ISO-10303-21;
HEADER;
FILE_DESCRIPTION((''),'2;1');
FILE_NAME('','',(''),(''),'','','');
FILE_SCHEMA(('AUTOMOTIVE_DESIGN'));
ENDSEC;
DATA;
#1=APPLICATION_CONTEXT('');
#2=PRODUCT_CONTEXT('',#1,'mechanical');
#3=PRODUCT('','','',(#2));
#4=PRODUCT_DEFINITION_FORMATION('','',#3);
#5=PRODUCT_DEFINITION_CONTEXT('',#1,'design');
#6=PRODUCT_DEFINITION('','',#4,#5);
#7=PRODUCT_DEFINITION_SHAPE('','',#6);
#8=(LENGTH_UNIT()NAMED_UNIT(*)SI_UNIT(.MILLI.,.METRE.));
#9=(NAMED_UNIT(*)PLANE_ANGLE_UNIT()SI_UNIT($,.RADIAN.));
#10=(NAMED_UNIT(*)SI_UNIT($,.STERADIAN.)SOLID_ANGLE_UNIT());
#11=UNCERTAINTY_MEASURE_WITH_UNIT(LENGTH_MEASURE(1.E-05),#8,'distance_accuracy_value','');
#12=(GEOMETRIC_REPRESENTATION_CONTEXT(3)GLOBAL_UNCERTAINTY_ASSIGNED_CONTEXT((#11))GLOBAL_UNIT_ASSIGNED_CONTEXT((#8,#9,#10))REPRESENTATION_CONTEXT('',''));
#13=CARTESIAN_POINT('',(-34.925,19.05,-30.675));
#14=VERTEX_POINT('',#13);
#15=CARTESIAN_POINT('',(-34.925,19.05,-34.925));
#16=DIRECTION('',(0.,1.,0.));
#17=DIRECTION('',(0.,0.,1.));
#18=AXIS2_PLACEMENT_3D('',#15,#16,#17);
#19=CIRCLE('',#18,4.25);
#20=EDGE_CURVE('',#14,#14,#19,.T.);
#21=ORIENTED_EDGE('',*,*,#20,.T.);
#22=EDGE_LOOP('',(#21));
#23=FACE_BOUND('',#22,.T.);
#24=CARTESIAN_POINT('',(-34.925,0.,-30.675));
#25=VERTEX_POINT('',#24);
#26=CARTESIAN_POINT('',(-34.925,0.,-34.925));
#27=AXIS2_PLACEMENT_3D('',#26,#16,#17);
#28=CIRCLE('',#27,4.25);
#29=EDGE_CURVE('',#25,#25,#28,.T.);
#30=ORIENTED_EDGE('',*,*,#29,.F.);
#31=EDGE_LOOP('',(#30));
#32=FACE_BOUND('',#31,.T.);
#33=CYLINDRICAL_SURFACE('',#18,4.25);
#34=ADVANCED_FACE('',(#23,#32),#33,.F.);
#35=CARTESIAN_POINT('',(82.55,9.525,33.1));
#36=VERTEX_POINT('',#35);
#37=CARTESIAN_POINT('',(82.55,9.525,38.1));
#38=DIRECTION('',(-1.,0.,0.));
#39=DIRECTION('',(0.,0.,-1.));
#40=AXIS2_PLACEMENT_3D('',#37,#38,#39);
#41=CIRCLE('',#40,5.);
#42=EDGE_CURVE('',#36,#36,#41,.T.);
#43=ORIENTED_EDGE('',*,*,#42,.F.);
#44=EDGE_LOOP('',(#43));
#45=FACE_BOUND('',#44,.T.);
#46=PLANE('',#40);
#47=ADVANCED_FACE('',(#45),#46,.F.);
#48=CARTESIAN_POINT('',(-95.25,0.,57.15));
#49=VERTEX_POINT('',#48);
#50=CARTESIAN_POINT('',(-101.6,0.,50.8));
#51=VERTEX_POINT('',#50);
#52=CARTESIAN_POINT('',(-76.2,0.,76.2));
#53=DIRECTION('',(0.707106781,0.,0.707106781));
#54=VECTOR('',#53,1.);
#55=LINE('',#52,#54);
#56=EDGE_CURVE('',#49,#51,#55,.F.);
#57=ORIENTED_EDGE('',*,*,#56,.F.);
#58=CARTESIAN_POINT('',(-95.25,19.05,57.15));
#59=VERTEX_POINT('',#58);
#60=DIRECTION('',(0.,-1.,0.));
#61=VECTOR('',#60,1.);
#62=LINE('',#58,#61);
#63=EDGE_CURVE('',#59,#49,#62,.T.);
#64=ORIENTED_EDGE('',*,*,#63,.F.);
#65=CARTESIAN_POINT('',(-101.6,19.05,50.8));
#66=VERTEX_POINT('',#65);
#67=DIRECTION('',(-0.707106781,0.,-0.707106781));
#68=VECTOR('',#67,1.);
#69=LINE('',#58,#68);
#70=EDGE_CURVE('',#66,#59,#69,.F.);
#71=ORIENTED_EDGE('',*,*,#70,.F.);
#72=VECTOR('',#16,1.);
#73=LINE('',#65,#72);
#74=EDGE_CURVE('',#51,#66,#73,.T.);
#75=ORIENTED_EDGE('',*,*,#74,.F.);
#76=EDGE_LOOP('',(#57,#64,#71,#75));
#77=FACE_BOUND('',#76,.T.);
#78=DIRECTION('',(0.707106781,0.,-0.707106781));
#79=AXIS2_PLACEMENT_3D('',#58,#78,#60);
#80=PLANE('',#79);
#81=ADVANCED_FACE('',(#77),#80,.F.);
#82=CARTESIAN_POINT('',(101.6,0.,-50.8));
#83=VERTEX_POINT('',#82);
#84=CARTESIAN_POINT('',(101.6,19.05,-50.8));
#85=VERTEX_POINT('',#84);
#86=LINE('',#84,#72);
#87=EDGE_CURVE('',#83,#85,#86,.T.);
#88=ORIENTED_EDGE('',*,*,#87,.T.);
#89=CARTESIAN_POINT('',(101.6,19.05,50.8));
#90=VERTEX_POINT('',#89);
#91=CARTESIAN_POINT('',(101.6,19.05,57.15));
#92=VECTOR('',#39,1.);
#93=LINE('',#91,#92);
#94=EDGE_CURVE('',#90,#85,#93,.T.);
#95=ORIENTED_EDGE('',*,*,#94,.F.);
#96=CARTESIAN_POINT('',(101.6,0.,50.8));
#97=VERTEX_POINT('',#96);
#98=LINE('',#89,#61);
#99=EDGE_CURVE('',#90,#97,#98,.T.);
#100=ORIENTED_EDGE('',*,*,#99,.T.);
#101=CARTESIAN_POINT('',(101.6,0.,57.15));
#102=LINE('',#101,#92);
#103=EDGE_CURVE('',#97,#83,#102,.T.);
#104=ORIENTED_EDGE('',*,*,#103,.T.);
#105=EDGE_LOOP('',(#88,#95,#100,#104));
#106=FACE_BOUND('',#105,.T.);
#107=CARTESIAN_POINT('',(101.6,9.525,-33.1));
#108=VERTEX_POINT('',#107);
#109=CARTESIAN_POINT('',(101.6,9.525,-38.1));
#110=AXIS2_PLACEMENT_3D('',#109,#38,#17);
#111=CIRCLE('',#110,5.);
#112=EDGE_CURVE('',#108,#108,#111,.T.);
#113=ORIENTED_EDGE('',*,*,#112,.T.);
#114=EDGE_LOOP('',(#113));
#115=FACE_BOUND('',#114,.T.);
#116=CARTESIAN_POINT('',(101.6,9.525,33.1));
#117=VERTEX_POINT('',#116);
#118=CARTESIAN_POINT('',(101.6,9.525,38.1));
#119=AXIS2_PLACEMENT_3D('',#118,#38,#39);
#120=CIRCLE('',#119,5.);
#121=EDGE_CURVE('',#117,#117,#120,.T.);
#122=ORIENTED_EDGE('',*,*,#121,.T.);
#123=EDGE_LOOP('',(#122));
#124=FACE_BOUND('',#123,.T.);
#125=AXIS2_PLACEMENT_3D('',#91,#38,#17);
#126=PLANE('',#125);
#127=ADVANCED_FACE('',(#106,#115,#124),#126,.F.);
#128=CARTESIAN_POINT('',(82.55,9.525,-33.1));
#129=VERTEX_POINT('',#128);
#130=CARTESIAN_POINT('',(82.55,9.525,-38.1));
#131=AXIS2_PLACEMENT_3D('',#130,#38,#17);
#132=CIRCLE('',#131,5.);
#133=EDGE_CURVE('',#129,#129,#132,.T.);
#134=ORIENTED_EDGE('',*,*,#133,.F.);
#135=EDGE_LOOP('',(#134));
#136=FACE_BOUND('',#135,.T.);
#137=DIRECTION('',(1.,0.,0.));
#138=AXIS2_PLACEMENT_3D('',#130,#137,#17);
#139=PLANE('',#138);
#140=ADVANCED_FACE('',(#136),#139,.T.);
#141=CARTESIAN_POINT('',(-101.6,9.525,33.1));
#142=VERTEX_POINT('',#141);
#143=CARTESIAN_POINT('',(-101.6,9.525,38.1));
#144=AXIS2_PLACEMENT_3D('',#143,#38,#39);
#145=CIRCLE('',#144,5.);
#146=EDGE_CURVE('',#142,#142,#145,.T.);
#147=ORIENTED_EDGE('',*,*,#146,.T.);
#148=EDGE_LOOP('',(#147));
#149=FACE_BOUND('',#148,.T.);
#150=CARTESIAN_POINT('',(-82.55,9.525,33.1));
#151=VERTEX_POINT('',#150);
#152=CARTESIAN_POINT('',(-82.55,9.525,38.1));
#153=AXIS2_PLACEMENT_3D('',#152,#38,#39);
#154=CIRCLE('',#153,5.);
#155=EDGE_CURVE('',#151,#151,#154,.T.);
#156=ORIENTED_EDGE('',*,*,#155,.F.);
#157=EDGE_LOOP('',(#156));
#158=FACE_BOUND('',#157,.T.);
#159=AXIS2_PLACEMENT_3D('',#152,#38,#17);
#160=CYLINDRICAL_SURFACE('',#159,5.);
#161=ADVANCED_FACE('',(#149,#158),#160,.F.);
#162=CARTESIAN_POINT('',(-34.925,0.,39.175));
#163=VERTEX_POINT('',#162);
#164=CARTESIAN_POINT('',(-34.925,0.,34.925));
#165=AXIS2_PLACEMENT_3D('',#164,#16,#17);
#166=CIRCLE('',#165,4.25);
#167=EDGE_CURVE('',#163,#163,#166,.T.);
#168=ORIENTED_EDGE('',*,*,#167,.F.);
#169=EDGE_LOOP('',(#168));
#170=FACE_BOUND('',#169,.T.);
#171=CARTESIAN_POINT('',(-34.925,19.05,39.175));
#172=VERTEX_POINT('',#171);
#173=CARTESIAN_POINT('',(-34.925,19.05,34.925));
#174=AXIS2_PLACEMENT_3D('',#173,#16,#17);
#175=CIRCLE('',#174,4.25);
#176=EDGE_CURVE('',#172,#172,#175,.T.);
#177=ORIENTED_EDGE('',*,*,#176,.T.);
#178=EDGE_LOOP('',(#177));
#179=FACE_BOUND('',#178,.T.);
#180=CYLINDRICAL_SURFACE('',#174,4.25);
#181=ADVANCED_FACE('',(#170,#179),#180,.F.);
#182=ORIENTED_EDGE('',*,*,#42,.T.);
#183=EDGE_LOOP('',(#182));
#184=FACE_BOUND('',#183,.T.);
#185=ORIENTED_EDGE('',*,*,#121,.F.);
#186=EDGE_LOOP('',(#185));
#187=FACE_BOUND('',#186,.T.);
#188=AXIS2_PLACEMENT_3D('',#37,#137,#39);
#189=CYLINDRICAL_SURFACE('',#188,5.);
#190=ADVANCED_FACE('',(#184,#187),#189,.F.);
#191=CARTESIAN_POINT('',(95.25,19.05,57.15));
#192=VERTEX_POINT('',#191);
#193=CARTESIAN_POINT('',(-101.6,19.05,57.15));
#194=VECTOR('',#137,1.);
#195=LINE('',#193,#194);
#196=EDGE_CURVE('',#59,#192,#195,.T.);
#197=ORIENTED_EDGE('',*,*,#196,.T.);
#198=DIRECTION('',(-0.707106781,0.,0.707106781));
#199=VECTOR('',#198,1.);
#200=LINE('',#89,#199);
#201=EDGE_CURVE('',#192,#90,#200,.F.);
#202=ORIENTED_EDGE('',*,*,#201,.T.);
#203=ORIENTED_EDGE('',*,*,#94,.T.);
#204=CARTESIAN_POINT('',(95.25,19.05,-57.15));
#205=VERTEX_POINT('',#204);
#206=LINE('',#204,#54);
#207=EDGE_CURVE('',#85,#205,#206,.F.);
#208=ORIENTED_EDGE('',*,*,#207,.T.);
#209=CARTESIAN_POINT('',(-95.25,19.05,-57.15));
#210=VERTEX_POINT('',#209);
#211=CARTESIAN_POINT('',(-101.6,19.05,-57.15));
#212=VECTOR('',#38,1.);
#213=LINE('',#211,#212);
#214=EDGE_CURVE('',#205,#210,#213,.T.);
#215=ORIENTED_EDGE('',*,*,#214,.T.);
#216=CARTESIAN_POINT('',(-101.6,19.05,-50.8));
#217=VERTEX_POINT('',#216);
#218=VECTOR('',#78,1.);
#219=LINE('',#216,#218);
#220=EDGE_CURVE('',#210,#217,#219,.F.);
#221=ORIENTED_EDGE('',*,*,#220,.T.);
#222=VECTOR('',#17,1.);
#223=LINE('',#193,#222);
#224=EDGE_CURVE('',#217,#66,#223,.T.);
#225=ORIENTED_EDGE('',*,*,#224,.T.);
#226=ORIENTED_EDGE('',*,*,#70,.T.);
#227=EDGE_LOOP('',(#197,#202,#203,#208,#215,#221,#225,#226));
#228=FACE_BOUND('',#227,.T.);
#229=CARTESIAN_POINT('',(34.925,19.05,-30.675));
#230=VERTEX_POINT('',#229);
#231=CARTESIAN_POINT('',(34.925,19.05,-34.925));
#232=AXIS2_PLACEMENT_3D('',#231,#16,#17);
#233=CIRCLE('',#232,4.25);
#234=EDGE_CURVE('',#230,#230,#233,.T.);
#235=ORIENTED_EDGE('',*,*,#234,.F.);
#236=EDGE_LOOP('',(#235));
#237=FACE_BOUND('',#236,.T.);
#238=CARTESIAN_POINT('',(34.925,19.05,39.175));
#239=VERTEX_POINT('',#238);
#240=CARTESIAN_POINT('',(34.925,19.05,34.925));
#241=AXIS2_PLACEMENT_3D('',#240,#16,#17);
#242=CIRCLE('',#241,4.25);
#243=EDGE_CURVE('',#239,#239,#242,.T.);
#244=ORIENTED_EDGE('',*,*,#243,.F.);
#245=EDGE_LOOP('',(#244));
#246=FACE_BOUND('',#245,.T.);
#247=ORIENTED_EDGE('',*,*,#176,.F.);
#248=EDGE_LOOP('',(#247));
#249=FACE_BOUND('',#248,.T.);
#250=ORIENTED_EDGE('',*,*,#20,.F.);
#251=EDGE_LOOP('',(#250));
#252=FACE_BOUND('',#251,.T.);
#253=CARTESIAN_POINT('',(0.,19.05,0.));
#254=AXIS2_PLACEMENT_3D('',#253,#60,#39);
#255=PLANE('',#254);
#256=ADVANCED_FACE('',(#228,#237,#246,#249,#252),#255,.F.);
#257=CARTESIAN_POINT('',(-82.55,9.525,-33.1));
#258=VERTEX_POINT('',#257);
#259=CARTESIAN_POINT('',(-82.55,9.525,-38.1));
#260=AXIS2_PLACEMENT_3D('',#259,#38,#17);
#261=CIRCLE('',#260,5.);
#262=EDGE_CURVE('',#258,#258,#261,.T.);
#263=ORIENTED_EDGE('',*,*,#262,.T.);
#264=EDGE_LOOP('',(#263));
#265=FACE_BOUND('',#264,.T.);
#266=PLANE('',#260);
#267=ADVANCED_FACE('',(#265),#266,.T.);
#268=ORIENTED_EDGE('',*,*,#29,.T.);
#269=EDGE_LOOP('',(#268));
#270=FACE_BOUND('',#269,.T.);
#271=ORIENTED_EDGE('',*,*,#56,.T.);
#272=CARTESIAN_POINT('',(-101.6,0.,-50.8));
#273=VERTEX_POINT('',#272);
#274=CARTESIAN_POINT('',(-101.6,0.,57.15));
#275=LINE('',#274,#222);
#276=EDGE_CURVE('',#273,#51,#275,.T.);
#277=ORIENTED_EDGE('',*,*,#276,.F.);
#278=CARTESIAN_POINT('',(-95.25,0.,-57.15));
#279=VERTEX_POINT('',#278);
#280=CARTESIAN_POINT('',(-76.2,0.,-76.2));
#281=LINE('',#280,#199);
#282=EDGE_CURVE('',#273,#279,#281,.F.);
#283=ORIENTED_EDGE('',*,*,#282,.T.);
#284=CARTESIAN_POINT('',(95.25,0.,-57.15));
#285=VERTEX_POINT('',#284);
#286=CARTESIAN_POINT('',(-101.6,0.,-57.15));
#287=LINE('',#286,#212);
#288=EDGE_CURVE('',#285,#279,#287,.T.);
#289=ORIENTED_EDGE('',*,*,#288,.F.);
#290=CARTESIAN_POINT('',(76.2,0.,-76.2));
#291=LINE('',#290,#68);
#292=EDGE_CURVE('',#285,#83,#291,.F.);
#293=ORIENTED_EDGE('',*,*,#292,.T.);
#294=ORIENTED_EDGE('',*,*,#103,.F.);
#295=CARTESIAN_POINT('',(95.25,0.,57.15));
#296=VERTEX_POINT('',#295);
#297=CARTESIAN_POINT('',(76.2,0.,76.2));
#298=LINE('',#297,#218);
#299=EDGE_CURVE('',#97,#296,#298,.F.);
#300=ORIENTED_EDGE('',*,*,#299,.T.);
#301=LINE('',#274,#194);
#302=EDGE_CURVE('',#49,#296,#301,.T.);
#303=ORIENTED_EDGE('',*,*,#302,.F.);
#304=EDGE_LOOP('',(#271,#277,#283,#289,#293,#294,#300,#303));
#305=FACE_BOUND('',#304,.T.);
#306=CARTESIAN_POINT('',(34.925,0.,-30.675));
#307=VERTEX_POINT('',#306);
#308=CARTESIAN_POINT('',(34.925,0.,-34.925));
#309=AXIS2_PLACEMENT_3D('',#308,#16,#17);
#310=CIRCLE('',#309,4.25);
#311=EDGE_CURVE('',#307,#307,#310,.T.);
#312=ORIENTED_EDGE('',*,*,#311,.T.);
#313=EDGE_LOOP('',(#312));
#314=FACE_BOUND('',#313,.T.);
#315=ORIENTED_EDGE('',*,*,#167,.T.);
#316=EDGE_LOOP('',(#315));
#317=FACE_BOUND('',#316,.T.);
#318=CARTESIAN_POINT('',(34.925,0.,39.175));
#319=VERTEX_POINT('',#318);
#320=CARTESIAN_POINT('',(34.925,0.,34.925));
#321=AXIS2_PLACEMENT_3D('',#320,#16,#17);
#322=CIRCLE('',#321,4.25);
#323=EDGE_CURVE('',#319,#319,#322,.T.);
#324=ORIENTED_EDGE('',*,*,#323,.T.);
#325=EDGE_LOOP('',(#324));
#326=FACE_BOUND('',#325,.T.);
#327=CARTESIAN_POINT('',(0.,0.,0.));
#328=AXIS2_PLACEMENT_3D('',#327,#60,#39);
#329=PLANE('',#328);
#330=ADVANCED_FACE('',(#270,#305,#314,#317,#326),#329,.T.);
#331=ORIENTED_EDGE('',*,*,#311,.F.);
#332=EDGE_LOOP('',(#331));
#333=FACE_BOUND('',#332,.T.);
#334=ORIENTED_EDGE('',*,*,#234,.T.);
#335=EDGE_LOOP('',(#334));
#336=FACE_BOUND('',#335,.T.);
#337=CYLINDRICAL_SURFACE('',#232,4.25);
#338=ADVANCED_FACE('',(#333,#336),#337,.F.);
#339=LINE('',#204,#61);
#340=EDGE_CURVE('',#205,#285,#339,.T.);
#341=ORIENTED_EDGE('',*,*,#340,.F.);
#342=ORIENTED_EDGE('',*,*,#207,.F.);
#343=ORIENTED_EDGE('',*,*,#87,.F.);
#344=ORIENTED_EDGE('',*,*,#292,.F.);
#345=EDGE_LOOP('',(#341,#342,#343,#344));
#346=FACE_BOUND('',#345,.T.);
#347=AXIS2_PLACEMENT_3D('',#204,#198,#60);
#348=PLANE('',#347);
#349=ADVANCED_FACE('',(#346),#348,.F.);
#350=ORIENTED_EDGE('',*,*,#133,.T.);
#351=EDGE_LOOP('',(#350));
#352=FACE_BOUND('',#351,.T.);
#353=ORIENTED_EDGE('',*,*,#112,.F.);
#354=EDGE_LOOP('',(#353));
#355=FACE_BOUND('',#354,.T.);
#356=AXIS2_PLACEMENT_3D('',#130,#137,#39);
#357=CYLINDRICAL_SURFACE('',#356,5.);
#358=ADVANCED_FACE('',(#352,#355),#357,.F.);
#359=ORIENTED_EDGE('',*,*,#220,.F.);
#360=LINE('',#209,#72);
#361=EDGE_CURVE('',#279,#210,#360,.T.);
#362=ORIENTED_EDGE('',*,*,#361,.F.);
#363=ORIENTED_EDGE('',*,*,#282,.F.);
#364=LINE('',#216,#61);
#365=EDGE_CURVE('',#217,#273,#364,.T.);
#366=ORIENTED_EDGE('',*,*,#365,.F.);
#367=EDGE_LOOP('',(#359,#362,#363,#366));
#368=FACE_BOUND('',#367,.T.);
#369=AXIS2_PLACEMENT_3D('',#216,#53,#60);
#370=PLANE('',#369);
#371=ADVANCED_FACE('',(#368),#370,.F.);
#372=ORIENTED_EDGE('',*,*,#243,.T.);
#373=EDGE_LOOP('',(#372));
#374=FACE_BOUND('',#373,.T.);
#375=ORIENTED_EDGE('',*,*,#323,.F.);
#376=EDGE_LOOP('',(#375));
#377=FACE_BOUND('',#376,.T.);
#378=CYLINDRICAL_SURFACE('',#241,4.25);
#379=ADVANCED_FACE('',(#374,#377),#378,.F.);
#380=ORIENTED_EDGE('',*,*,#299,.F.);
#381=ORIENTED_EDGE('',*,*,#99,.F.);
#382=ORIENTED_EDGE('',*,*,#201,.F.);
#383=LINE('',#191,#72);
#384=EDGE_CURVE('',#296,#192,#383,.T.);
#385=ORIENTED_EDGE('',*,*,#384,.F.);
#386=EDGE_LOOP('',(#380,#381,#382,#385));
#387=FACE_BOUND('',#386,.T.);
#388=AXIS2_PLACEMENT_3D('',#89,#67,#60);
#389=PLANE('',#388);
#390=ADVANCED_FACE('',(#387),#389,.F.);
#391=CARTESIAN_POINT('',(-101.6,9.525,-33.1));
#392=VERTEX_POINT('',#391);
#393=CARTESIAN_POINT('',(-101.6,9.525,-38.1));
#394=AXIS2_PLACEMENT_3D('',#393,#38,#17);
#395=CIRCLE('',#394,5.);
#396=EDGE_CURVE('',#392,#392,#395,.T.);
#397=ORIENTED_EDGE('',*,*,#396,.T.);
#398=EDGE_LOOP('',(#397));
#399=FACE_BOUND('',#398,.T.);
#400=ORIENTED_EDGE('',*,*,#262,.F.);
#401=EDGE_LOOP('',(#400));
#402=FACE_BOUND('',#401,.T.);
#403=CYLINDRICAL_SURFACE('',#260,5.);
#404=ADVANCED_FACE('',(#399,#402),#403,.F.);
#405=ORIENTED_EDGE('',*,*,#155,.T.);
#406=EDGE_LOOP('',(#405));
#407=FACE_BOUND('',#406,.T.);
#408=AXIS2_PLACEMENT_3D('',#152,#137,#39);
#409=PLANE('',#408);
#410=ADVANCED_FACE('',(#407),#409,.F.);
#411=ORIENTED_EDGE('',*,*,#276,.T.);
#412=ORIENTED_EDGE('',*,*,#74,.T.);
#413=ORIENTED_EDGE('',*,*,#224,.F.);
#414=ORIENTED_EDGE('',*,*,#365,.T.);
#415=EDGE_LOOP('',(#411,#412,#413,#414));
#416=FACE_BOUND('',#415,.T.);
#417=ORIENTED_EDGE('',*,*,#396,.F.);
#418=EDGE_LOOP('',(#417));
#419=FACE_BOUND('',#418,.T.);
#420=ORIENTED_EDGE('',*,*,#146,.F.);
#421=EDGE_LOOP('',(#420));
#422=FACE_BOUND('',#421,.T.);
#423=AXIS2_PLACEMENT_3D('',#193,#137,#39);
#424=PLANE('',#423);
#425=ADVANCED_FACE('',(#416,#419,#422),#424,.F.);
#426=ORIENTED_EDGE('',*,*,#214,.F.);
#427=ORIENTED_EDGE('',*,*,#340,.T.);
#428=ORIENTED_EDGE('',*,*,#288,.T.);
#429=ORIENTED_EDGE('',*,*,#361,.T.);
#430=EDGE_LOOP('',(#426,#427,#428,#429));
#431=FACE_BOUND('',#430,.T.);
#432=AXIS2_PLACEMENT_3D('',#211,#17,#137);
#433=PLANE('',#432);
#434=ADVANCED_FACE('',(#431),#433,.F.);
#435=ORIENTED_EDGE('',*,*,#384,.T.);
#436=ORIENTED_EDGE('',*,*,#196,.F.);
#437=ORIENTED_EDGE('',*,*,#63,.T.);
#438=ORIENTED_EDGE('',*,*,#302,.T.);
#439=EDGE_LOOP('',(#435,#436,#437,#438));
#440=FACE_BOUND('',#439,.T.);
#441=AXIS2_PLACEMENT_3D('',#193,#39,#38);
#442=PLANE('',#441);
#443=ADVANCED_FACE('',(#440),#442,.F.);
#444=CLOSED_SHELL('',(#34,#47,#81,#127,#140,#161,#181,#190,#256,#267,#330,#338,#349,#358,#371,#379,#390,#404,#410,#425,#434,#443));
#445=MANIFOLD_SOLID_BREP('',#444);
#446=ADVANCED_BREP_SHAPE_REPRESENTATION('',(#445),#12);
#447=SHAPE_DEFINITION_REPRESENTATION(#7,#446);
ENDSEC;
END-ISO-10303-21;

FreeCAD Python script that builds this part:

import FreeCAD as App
import Part
import Sketcher
from FreeCAD import Vector
Q = App.Units.Quantity


def edges_at(feature, points):
    """Names of the edges that pass closest to the given points."""
    edges = feature.Shape.Edges
    near = lambda p: min(range(len(edges)), key=lambda i: edges[i].distToShape(Part.Vertex(*p))[0])
    return sorted({f"Edge{near(p) + 1}" for p in points})


def add_polygon(sketch, points):
    """Adds a closed chain of lines whose ends are joined by coincident constraints."""
    first, n = sketch.GeometryCount, len(points)
    for a, b in zip(points, points[1:] + points[:1]):
        sketch.addGeometry(Part.LineSegment(App.Vector(*a, 0), App.Vector(*b, 0)), False)
    for i in range(n):
        sketch.addConstraint(Sketcher.Constraint("Coincident", first + i, 2, first + (i + 1) % n, 1))

doc = App.newDocument("Part")
body = doc.addObject("PartDesign::Body", "Body")

# Sketch on XZ plane
sketch1 = body.newObject("Sketcher::SketchObject", "Sketch")
sketch1.AttachmentSupport = (doc.getObject("XZ_Plane"), [""])
sketch1.MapMode = "FlatFace"
add_polygon(sketch1, [(-102, -57), (-102, 57), (102, 57), (102, -57)])  # lines 0-3
sketch1.addConstraint([
    Sketcher.Constraint("Vertical", 0),
    Sketcher.Constraint("Horizontal", 1),
    Sketcher.Constraint("Vertical", 2),
    Sketcher.Constraint("Horizontal", 3),
    Sketcher.Constraint("Symmetric", 0, 2, 2, 2, -1, 1),
    Sketcher.Constraint("DistanceX", 1, 1, 1, 2, Q("8 in")),
    Sketcher.Constraint("DistanceY", 0, 1, 0, 2, Q("4.5 in")),
])
pad1 = body.newObject("PartDesign::Pad", "Pad")
pad1.Profile = sketch1
pad1.Length = Q("0.75 in")
pad1.Reversed = True

# Sketch on YZ plane
sketch2 = body.newObject("Sketcher::SketchObject", "Sketch001")
sketch2.AttachmentSupport = (doc.getObject("YZ_Plane"), [""])
sketch2.MapMode = "FlatFace"
sketch2.AttachmentOffset = App.Placement(Vector(0, 0, -4 * 25.4), App.Rotation())
sketch2.addGeometry([
    Part.Circle(Vector(10, -38, 0), Vector(0, 0, 1), 5),
    Part.Circle(Vector(10, 38, 0), Vector(0, 0, 1), 5),
], False)
sketch2.addConstraint([
    Sketcher.Constraint("Equal", 0, 1),
    Sketcher.Constraint("Symmetric", 0, 3, 1, 3, -1),
    Sketcher.Constraint("DistanceY", 0, 3, 1, 3, Q("3 in")),
    Sketcher.Constraint("Diameter", 0, Q("10 mm")),
    Sketcher.Constraint("DistanceX", -1, 1, 0, 3, Q("0.375 in")),
])
pocket1 = body.newObject("PartDesign::Pocket", "Pocket")
pocket1.Profile = sketch2
pocket1.Length = Q("0.75 in")
pocket1.Reversed = True
doc.recompute()

mirrored = body.newObject("PartDesign::Mirrored", "Mirrored")
mirrored.Originals = [pocket1]
mirrored.MirrorPlane = (doc.getObject("YZ_Plane"), [""])
body.Tip = mirrored
doc.recompute()

chamfer = body.newObject("PartDesign::Chamfer", "Chamfer")
chamfer.Base = (mirrored, edges_at(mirrored, [
    (101.6, 9.525, 57.15),
    (-101.6, 9.525, 57.15),
    (-101.6, 9.525, -57.15),
    (101.6, 9.525, -57.15),
]))
chamfer.Size = Q("0.25 in")

# Sketch on XZ plane
sketch3 = body.newObject("Sketcher::SketchObject", "Sketch002")
sketch3.AttachmentSupport = (doc.getObject("XZ_Plane"), [""])
sketch3.MapMode = "FlatFace"
sketch3.AttachmentOffset = App.Placement(Vector(0, 0, -0.75 * 25.4), App.Rotation())
sketch3.addGeometry([
    Part.Circle(Vector(34.9, 34.9, 0), Vector(0, 0, 1), 4.2),
    Part.Circle(Vector(-34.9, 34.9, 0), Vector(0, 0, 1), 4.2),
    Part.Circle(Vector(34.9, -34.9, 0), Vector(0, 0, 1), 4.2),
    Part.Circle(Vector(-34.9, -34.9, 0), Vector(0, 0, 1), 4.2),
], False)
sketch3.addConstraint([
    Sketcher.Constraint("Equal", 0, 1),
    Sketcher.Constraint("Equal", 1, 2),
    Sketcher.Constraint("Equal", 2, 3),
    Sketcher.Constraint("Symmetric", 1, 3, 2, 3, -1, 1),
    Sketcher.Constraint("Symmetric", 0, 3, 3, 3, -1, 1),
    Sketcher.Constraint("Symmetric", 0, 3, 1, 3, -2),
    Sketcher.Constraint("Diameter", 0, Q("8.5 mm")),
    Sketcher.Constraint("DistanceX", 1, 3, 0, 3, Q("2.75 in")),
    Sketcher.Constraint("DistanceY", 2, 3, 0, 3, Q("2.75 in")),
])
doc.recompute()
hole = body.newObject("PartDesign::Hole", "Hole")
hole.Profile = sketch3
hole.ThreadType = "None"
hole.Diameter = 8.5
hole.DepthType = "ThroughAll"
hole.Reversed = True

doc.recompute()
